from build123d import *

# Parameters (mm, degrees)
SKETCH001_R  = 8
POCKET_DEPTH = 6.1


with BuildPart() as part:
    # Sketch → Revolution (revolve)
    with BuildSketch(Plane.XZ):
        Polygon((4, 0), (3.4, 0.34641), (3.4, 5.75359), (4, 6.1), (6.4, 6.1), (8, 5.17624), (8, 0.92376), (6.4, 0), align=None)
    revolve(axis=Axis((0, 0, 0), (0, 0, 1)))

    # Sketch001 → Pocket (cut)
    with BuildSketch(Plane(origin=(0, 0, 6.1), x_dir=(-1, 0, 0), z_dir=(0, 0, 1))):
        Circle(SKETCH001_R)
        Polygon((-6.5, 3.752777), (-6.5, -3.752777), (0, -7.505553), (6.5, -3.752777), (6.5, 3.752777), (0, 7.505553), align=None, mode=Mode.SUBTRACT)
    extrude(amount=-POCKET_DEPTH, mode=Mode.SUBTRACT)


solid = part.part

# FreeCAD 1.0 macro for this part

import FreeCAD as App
import Part
import Sketcher
from FreeCAD import Vector
Q = App.Units.Quantity

doc = App.newDocument("Part")
params = doc.addObject("Spreadsheet::Sheet", "Params")
for row, (alias, value) in enumerate([
    ("sketch1_width", "2.4 mm"),
    ("revolution_angle", "360 deg"),
    ("sketch2_diameter", "16 mm"),
    ("pocket1_length", "6.1 mm"),
], start=1):
    params.set(f"A{row}", alias)
    params.set(f"B{row}", "=" + value)
    params.setAlias(f"B{row}", alias)

body = doc.addObject("PartDesign::Body", "Body")

sketch1 = body.newObject("Sketcher::SketchObject", "Sketch")
sketch1.AttachmentSupport = (doc.getObject("XZ_Plane"), [""])
sketch1.MapMode = "FlatFace"
sketch1.addGeometry([
    Part.LineSegment(Vector(3.4, 0.3, 0), Vector(4, 0, 0)),
    Part.LineSegment(Vector(4, 0, 0), Vector(6.4, 0, 0)),
    Part.LineSegment(Vector(6.4, 0, 0), Vector(8, 0.9, 0)),
    Part.LineSegment(Vector(8, 0.9, 0), Vector(8, 5.2, 0)),
    Part.LineSegment(Vector(8, 5.2, 0), Vector(6.4, 6.1, 0)),
    Part.LineSegment(Vector(6.4, 6.1, 0), Vector(4, 6.1, 0)),
    Part.LineSegment(Vector(4, 6.1, 0), Vector(3.4, 5.8, 0)),
    Part.LineSegment(Vector(3.4, 5.8, 0), Vector(3.4, 0.3, 0)),
], False)
sketch1.addConstraint([
    Sketcher.Constraint("Coincident", 0, 2, 1, 1),
    Sketcher.Constraint("Coincident", 1, 2, 2, 1),
    Sketcher.Constraint("Coincident", 2, 2, 3, 1),
    Sketcher.Constraint("Coincident", 3, 2, 4, 1),
    Sketcher.Constraint("Coincident", 4, 2, 5, 1),
    Sketcher.Constraint("Coincident", 5, 2, 6, 1),
    Sketcher.Constraint("Coincident", 6, 2, 7, 1),
    Sketcher.Constraint("Coincident", 7, 2, 0, 1),
    Sketcher.Constraint("Horizontal", 1),
    Sketcher.Constraint("Vertical", 3),
    Sketcher.Constraint("Horizontal", 5),
    Sketcher.Constraint("Vertical", 7),
    Sketcher.Constraint("PointOnObject", 0, 2, -1),
    Sketcher.Constraint("Parallel", 0, 4),
    Sketcher.Constraint("Parallel", 2, 6),
    Sketcher.Constraint("Vertical", 1, 2, 4, 2),
    Sketcher.Constraint("Vertical", 0, 2, 5, 2),
    Sketcher.Constraint("Equal", 2, 4),
    Sketcher.Constraint("Angle", 0, Q("-29.999988 deg")),
    Sketcher.Constraint("DistanceX", 1, 1, 1, 2, Q("2.4 mm")),
    Sketcher.Constraint("DistanceX", -1, 1, 0, 2, Q("4 mm")),
    Sketcher.Constraint("DistanceX", -1, 1, 2, 2, Q("8 mm")),
    Sketcher.Constraint("DistanceX", 6, 2, 4, 2, Q("3 mm")),
    Sketcher.Constraint("DistanceY", -1, 1, 4, 2, Q("6.1 mm")),
])
sketch1.setExpression("Constraints[19]", "Params.sketch1_width")
revolution = body.newObject("PartDesign::Revolution", "Revolution")
revolution.Profile = sketch1
revolution.ReferenceAxis = (sketch1, ["V_Axis"])
revolution.setExpression("Angle", "Params.revolution_angle")

sketch2 = body.newObject("Sketcher::SketchObject", "Sketch001")
sketch2.AttachmentSupport = (doc.getObject("XY_Plane"), [""])
sketch2.MapMode = "FlatFace"
sketch2.AttachmentOffset = App.Placement(Vector(0, 0, 6.1), App.Rotation())
sketch2.addGeometry([
    Part.Circle(Vector(0, 0, 0), Vector(0, 0, 1), 8),
    Part.LineSegment(Vector(6, 4, 0), Vector(6, -4, 0)),
    Part.LineSegment(Vector(6, -4, 0), Vector(0, -8, 0)),
    Part.LineSegment(Vector(0, -8, 0), Vector(-6, -4, 0)),
    Part.LineSegment(Vector(-6, -4, 0), Vector(-6, 4, 0)),
    Part.LineSegment(Vector(-6, 4, 0), Vector(0, 8, 0)),
    Part.LineSegment(Vector(0, 8, 0), Vector(6, 4, 0)),
], False)
sketch2.addConstraint([
    Sketcher.Constraint("Coincident", 1, 2, 2, 1),
    Sketcher.Constraint("Coincident", 2, 2, 3, 1),
    Sketcher.Constraint("Coincident", 3, 2, 4, 1),
    Sketcher.Constraint("Coincident", 4, 2, 5, 1),
    Sketcher.Constraint("Coincident", 5, 2, 6, 1),
    Sketcher.Constraint("Coincident", 6, 2, 1, 1),
    Sketcher.Constraint("Vertical", 1),
    Sketcher.Constraint("Vertical", 4),
    Sketcher.Constraint("Coincident", 0, 3, -1, 1),
    Sketcher.Constraint("Symmetric", 1, 2, 4, 2, -1, 1),
    Sketcher.Constraint("Symmetric", 2, 2, 5, 2, -1, 1),
    Sketcher.Constraint("PointOnObject", 2, 2, -2),
    Sketcher.Constraint("Parallel", 3, 6),
    Sketcher.Constraint("Horizontal", 1, 2, 3, 2),
    Sketcher.Constraint("Diameter", 0, Q("16 mm")),
    Sketcher.Constraint("Angle", 2, Q("-150.000005 deg")),
    Sketcher.Constraint("DistanceX", 3, 2, 1, 2, Q("13 mm")),
    Sketcher.Constraint("DistanceY", 1, 2, 1, 1, Q("7.505554 mm")),
])
sketch2.setExpression("Constraints[14]", "Params.sketch2_diameter")
pocket1 = body.newObject("PartDesign::Pocket", "Pocket")
pocket1.Profile = sketch2
pocket1.setExpression("Length", "Params.pocket1_length")

doc.recompute()
